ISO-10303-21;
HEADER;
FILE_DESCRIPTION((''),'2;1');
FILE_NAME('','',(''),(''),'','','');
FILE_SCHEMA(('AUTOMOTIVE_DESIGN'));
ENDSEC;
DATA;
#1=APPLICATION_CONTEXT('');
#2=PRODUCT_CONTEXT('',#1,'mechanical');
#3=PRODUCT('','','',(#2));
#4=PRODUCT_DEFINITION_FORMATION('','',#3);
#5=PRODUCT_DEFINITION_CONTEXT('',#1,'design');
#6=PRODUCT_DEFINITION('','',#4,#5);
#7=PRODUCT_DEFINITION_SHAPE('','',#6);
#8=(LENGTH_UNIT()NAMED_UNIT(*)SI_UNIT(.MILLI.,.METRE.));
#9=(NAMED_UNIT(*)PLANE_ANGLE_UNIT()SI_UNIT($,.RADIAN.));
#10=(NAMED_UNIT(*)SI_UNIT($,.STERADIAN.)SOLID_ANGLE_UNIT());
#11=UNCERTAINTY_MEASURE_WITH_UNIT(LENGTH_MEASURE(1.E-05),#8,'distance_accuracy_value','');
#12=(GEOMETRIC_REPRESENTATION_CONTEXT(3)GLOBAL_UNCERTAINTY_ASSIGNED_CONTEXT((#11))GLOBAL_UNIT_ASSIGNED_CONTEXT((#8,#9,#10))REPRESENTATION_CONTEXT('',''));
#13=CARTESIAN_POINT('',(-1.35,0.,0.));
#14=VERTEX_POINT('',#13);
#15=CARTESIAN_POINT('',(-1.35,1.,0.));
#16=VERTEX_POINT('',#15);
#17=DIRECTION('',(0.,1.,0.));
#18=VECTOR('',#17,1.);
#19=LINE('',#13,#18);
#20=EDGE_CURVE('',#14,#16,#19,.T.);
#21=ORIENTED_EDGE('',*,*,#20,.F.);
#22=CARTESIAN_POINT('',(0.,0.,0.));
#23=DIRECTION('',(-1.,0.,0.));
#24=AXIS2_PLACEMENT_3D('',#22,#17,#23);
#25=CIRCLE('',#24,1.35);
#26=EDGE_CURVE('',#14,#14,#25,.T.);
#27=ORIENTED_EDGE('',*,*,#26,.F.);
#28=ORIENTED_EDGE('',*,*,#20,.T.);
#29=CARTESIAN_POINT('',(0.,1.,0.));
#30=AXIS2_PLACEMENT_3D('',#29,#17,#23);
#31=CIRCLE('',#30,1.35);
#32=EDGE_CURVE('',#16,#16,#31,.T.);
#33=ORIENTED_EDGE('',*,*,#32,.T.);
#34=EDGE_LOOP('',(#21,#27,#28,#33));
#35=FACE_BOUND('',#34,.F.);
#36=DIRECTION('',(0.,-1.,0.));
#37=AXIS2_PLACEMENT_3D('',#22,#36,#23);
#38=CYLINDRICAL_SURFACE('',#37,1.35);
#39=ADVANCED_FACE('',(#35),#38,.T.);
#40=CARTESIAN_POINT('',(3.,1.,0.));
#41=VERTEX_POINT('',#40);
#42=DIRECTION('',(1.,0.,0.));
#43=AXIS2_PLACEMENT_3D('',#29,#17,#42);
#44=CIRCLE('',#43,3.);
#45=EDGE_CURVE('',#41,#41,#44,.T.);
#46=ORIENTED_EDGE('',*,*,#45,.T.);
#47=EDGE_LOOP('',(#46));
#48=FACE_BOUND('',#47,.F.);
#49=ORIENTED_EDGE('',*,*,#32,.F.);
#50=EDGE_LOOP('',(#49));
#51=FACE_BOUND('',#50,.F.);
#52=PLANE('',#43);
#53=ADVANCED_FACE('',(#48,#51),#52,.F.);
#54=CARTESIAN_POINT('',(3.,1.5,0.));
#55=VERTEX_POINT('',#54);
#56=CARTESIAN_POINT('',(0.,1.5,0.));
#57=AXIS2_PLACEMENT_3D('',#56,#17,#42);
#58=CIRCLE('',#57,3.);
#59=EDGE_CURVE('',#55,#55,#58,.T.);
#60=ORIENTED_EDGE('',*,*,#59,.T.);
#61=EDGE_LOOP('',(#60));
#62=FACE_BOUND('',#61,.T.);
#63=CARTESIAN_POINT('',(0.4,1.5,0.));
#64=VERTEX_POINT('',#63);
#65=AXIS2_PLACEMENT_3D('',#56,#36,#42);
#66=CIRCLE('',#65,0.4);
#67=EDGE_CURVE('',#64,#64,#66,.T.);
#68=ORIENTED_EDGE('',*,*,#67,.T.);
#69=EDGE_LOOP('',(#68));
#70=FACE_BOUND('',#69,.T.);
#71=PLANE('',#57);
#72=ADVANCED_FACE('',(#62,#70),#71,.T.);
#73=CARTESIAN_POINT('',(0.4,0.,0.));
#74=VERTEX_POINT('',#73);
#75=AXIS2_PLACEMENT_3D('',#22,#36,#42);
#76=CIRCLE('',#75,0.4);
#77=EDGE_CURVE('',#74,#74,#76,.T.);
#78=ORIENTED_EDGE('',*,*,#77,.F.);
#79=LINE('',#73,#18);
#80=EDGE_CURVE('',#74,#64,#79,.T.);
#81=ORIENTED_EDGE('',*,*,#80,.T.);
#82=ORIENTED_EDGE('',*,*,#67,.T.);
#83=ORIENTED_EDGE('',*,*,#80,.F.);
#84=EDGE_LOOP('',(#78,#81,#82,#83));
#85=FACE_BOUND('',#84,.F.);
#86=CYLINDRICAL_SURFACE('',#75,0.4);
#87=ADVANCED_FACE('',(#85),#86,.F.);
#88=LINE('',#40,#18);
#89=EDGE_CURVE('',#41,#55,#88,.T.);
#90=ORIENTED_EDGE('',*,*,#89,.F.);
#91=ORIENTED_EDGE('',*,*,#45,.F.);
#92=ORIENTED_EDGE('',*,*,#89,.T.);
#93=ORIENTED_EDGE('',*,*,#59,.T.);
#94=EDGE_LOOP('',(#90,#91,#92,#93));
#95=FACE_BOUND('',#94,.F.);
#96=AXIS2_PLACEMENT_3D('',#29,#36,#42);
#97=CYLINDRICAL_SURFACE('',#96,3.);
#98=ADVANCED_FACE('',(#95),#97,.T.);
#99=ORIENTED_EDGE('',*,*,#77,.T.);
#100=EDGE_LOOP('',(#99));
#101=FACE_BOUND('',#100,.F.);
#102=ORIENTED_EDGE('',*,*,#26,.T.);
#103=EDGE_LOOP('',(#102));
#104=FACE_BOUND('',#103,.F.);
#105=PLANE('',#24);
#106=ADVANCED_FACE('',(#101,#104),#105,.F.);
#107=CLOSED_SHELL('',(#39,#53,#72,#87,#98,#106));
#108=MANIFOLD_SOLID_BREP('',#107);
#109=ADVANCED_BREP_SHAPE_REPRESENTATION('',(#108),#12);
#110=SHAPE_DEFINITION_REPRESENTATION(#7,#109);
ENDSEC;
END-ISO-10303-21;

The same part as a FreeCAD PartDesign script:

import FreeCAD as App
import Part
import Sketcher

V = App.Vector

doc = App.newDocument("Part")
body = doc.addObject("PartDesign::Body", "Body")

# Sketch on XZ plane
sketch1 = body.newObject("Sketcher::SketchObject", "Sketch")
sketch1.AttachmentSupport = (doc.getObject("XZ_Plane"), [""])
sketch1.MapMode = "FlatFace"
sketch1.addGeometry(Part.Circle(V(0, 0, 0), V(0, 0, 1), 1.4), False)
sketch1.addConstraint([
    Sketcher.Constraint("Coincident", 0, 3, -1, 1),
    Sketcher.Constraint("Diameter", 0, 2.7),
])
pad1 = body.newObject("PartDesign::Pad", "Pad")
pad1.Profile = sketch1
pad1.Length = 1
pad1.Reversed = True

# Sketch on XZ plane
sketch2 = body.newObject("Sketcher::SketchObject", "Sketch001")
sketch2.AttachmentSupport = (doc.getObject("XZ_Plane"), [""])
sketch2.MapMode = "FlatFace"
sketch2.AttachmentOffset = App.Placement(V(0, 0, -1), App.Rotation())
sketch2.addGeometry(Part.Circle(V(0, 0, 0), V(0, 0, 1), 3), False)
sketch2.addConstraint([
    Sketcher.Constraint("Coincident", 0, 3, -1, 1),
    Sketcher.Constraint("Diameter", 0, 6.0),
])
pad2 = body.newObject("PartDesign::Pad", "Pad001")
pad2.Profile = sketch2
pad2.Length = 0.5
pad2.Reversed = True

# Sketch on XZ plane
sketch3 = body.newObject("Sketcher::SketchObject", "Sketch002")
sketch3.AttachmentSupport = (doc.getObject("XZ_Plane"), [""])
sketch3.MapMode = "FlatFace"
sketch3.addGeometry(Part.Circle(V(0, 0, 0), V(0, 0, 1), 0.4), False)
sketch3.addConstraint([
    Sketcher.Constraint("Coincident", 0, 3, -1, 1),
    Sketcher.Constraint("Diameter", 0, 0.8),
])
pocket1 = body.newObject("PartDesign::Pocket", "Pocket")
pocket1.Profile = sketch3
pocket1.Length = 2

doc.recompute()
